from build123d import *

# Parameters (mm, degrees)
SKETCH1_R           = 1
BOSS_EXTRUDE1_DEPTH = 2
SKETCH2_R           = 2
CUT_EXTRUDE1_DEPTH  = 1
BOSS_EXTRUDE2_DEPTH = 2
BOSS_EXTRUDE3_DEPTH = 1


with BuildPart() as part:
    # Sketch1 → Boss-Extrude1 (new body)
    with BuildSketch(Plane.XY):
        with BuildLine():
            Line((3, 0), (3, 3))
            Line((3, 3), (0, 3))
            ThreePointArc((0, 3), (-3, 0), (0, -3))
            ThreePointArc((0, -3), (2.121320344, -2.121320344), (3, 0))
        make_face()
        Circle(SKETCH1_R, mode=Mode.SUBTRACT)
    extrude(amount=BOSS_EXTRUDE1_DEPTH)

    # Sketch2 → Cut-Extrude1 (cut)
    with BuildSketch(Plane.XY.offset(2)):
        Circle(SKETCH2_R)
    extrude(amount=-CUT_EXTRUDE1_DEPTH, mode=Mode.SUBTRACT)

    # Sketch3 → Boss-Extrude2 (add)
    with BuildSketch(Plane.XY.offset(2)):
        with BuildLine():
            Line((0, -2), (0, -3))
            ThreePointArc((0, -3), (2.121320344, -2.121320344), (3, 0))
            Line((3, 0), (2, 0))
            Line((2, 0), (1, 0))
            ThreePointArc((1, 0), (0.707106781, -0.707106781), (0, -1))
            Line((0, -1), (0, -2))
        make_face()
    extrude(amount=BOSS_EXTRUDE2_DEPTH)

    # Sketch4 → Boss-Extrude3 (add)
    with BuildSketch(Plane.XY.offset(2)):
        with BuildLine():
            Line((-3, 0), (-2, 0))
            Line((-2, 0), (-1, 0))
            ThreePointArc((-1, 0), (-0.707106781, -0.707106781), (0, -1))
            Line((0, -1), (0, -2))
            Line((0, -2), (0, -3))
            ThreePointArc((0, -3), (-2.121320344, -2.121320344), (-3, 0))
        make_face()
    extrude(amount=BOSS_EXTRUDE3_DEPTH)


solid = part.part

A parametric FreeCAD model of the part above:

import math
import FreeCAD as App
import Part
import Sketcher
from FreeCAD import Vector

doc = App.newDocument("Part")
body = doc.addObject("PartDesign::Body", "Body")

# Sketch on XY plane
sketch1 = body.newObject("Sketcher::SketchObject", "Sketch")
sketch1.AttachmentSupport = (doc.getObject("XY_Plane"), [""])
sketch1.MapMode = "FlatFace"
sketch1.addGeometry([
    Part.LineSegment(Vector(3, 0, 0), Vector(3, 3, 0)),  # 0
    Part.LineSegment(Vector(3, 3, 0), Vector(0, 3, 0)),  # 1
    Part.ArcOfCircle(Part.Circle(Vector(0, 0, 0), Vector(0, 0, 1), 3), math.radians(90), math.radians(270)),  # 2
    Part.ArcOfCircle(Part.Circle(Vector(0, 0, 0), Vector(0, 0, 1), 3), math.radians(-90), math.radians(0)),  # 3
    Part.Circle(Vector(0, 0, 0), Vector(0, 0, 1), 1),  # 4
], False)
sketch1.addConstraint([
    Sketcher.Constraint("Coincident", 0, 2, 1, 1),
    Sketcher.Constraint("Tangent", 1, 2, 2, 1),
    Sketcher.Constraint("Tangent", 2, 2, 3, 1),
    Sketcher.Constraint("Tangent", 3, 2, 0, 1),
    Sketcher.Constraint("Vertical", 0),
    Sketcher.Constraint("Horizontal", 1),
    Sketcher.Constraint("Coincident", 2, 3, -1, 1),
    Sketcher.Constraint("Coincident", 4, 3, -1, 1),
    Sketcher.Constraint("Equal", 2, 3),
    Sketcher.Constraint("PointOnObject", 2, 2, -2),
    Sketcher.Constraint("Diameter", 4, 2.0),
    Sketcher.Constraint("Radius", 2, 3.0),
])
pad1 = body.newObject("PartDesign::Pad", "Pad")
pad1.Profile = sketch1
pad1.Length = 2

# Sketch on XY plane
sketch2 = body.newObject("Sketcher::SketchObject", "Sketch001")
sketch2.AttachmentSupport = (doc.getObject("XY_Plane"), [""])
sketch2.MapMode = "FlatFace"
sketch2.AttachmentOffset = App.Placement(Vector(0, 0, 2), App.Rotation())
sketch2.addGeometry(Part.Circle(Vector(0, 0, 0), Vector(0, 0, 1), 2), False)
sketch2.addConstraint([
    Sketcher.Constraint("Coincident", 0, 3, -1, 1),
    Sketcher.Constraint("Diameter", 0, 4.0),
])
pocket1 = body.newObject("PartDesign::Pocket", "Pocket")
pocket1.Profile = sketch2
pocket1.Length = 1

# Sketch on XY plane
sketch3 = body.newObject("Sketcher::SketchObject", "Sketch002")
sketch3.AttachmentSupport = (doc.getObject("XY_Plane"), [""])
sketch3.MapMode = "FlatFace"
sketch3.AttachmentOffset = App.Placement(Vector(0, 0, 2), App.Rotation())
sketch3.addGeometry([
    Part.ArcOfCircle(Part.Circle(Vector(0, 0, 0), Vector(0, 0, 1), 3), math.radians(-90), math.radians(0)),
    Part.LineSegment(Vector(3, 0, 0), Vector(1, 0, 0)),
    Part.ArcOfCircle(Part.Circle(Vector(0, 0, 0), Vector(0, 0, 1), 1), math.radians(-90), math.radians(0)),
    Part.LineSegment(Vector(0, -1, 0), Vector(0, -3, 0)),
], False)
sketch3.addConstraint([
    Sketcher.Constraint("Coincident", 0, 2, 1, 1),
    Sketcher.Constraint("Coincident", 1, 2, 2, 2),
    Sketcher.Constraint("Coincident", 2, 1, 3, 1),
    Sketcher.Constraint("Coincident", 3, 2, 0, 1),
    Sketcher.Constraint("Horizontal", 1),
    Sketcher.Constraint("Vertical", 3),
    Sketcher.Constraint("Coincident", 0, 3, -1, 1),
    Sketcher.Constraint("Coincident", 2, 3, -1, 1),
    Sketcher.Constraint("PointOnObject", 0, 2, -1),
    Sketcher.Constraint("PointOnObject", 2, 1, -2),
    Sketcher.Constraint("Radius", 0, 3.0),
    Sketcher.Constraint("Radius", 2, 1.0),
])
pad2 = body.newObject("PartDesign::Pad", "Pad001")
pad2.Profile = sketch3
pad2.Length = 2

# Sketch on XY plane
sketch4 = body.newObject("Sketcher::SketchObject", "Sketch003")
sketch4.AttachmentSupport = (doc.getObject("XY_Plane"), [""])
sketch4.MapMode = "FlatFace"
sketch4.AttachmentOffset = App.Placement(Vector(0, 0, 2), App.Rotation())
sketch4.addGeometry([
    Part.LineSegment(Vector(-1, 0, 0), Vector(-3, 0, 0)),
    Part.ArcOfCircle(Part.Circle(Vector(0, 0, 0), Vector(0, 0, 1), 3), math.radians(180), math.radians(270)),
    Part.LineSegment(Vector(0, -3, 0), Vector(0, -1, 0)),
    Part.ArcOfCircle(Part.Circle(Vector(0, 0, 0), Vector(0, 0, 1), 1), math.radians(-180), math.radians(-90)),
], False)
sketch4.addConstraint([
    Sketcher.Constraint("Coincident", 0, 2, 1, 1),
    Sketcher.Constraint("Coincident", 1, 2, 2, 1),
    Sketcher.Constraint("Coincident", 2, 2, 3, 2),
    Sketcher.Constraint("Coincident", 3, 1, 0, 1),
    Sketcher.Constraint("Horizontal", 0),
    Sketcher.Constraint("Vertical", 2),
    Sketcher.Constraint("Coincident", 1, 3, -1, 1),
    Sketcher.Constraint("Coincident", 3, 3, -1, 1),
    Sketcher.Constraint("PointOnObject", 0, 2, -1),
    Sketcher.Constraint("PointOnObject", 1, 2, -2),
    Sketcher.Constraint("Radius", 1, 3.0),
    Sketcher.Constraint("Radius", 3, 1.0),
])
pad3 = body.newObject("PartDesign::Pad", "Pad002")
pad3.Profile = sketch4
pad3.Length = 1

doc.recompute()
